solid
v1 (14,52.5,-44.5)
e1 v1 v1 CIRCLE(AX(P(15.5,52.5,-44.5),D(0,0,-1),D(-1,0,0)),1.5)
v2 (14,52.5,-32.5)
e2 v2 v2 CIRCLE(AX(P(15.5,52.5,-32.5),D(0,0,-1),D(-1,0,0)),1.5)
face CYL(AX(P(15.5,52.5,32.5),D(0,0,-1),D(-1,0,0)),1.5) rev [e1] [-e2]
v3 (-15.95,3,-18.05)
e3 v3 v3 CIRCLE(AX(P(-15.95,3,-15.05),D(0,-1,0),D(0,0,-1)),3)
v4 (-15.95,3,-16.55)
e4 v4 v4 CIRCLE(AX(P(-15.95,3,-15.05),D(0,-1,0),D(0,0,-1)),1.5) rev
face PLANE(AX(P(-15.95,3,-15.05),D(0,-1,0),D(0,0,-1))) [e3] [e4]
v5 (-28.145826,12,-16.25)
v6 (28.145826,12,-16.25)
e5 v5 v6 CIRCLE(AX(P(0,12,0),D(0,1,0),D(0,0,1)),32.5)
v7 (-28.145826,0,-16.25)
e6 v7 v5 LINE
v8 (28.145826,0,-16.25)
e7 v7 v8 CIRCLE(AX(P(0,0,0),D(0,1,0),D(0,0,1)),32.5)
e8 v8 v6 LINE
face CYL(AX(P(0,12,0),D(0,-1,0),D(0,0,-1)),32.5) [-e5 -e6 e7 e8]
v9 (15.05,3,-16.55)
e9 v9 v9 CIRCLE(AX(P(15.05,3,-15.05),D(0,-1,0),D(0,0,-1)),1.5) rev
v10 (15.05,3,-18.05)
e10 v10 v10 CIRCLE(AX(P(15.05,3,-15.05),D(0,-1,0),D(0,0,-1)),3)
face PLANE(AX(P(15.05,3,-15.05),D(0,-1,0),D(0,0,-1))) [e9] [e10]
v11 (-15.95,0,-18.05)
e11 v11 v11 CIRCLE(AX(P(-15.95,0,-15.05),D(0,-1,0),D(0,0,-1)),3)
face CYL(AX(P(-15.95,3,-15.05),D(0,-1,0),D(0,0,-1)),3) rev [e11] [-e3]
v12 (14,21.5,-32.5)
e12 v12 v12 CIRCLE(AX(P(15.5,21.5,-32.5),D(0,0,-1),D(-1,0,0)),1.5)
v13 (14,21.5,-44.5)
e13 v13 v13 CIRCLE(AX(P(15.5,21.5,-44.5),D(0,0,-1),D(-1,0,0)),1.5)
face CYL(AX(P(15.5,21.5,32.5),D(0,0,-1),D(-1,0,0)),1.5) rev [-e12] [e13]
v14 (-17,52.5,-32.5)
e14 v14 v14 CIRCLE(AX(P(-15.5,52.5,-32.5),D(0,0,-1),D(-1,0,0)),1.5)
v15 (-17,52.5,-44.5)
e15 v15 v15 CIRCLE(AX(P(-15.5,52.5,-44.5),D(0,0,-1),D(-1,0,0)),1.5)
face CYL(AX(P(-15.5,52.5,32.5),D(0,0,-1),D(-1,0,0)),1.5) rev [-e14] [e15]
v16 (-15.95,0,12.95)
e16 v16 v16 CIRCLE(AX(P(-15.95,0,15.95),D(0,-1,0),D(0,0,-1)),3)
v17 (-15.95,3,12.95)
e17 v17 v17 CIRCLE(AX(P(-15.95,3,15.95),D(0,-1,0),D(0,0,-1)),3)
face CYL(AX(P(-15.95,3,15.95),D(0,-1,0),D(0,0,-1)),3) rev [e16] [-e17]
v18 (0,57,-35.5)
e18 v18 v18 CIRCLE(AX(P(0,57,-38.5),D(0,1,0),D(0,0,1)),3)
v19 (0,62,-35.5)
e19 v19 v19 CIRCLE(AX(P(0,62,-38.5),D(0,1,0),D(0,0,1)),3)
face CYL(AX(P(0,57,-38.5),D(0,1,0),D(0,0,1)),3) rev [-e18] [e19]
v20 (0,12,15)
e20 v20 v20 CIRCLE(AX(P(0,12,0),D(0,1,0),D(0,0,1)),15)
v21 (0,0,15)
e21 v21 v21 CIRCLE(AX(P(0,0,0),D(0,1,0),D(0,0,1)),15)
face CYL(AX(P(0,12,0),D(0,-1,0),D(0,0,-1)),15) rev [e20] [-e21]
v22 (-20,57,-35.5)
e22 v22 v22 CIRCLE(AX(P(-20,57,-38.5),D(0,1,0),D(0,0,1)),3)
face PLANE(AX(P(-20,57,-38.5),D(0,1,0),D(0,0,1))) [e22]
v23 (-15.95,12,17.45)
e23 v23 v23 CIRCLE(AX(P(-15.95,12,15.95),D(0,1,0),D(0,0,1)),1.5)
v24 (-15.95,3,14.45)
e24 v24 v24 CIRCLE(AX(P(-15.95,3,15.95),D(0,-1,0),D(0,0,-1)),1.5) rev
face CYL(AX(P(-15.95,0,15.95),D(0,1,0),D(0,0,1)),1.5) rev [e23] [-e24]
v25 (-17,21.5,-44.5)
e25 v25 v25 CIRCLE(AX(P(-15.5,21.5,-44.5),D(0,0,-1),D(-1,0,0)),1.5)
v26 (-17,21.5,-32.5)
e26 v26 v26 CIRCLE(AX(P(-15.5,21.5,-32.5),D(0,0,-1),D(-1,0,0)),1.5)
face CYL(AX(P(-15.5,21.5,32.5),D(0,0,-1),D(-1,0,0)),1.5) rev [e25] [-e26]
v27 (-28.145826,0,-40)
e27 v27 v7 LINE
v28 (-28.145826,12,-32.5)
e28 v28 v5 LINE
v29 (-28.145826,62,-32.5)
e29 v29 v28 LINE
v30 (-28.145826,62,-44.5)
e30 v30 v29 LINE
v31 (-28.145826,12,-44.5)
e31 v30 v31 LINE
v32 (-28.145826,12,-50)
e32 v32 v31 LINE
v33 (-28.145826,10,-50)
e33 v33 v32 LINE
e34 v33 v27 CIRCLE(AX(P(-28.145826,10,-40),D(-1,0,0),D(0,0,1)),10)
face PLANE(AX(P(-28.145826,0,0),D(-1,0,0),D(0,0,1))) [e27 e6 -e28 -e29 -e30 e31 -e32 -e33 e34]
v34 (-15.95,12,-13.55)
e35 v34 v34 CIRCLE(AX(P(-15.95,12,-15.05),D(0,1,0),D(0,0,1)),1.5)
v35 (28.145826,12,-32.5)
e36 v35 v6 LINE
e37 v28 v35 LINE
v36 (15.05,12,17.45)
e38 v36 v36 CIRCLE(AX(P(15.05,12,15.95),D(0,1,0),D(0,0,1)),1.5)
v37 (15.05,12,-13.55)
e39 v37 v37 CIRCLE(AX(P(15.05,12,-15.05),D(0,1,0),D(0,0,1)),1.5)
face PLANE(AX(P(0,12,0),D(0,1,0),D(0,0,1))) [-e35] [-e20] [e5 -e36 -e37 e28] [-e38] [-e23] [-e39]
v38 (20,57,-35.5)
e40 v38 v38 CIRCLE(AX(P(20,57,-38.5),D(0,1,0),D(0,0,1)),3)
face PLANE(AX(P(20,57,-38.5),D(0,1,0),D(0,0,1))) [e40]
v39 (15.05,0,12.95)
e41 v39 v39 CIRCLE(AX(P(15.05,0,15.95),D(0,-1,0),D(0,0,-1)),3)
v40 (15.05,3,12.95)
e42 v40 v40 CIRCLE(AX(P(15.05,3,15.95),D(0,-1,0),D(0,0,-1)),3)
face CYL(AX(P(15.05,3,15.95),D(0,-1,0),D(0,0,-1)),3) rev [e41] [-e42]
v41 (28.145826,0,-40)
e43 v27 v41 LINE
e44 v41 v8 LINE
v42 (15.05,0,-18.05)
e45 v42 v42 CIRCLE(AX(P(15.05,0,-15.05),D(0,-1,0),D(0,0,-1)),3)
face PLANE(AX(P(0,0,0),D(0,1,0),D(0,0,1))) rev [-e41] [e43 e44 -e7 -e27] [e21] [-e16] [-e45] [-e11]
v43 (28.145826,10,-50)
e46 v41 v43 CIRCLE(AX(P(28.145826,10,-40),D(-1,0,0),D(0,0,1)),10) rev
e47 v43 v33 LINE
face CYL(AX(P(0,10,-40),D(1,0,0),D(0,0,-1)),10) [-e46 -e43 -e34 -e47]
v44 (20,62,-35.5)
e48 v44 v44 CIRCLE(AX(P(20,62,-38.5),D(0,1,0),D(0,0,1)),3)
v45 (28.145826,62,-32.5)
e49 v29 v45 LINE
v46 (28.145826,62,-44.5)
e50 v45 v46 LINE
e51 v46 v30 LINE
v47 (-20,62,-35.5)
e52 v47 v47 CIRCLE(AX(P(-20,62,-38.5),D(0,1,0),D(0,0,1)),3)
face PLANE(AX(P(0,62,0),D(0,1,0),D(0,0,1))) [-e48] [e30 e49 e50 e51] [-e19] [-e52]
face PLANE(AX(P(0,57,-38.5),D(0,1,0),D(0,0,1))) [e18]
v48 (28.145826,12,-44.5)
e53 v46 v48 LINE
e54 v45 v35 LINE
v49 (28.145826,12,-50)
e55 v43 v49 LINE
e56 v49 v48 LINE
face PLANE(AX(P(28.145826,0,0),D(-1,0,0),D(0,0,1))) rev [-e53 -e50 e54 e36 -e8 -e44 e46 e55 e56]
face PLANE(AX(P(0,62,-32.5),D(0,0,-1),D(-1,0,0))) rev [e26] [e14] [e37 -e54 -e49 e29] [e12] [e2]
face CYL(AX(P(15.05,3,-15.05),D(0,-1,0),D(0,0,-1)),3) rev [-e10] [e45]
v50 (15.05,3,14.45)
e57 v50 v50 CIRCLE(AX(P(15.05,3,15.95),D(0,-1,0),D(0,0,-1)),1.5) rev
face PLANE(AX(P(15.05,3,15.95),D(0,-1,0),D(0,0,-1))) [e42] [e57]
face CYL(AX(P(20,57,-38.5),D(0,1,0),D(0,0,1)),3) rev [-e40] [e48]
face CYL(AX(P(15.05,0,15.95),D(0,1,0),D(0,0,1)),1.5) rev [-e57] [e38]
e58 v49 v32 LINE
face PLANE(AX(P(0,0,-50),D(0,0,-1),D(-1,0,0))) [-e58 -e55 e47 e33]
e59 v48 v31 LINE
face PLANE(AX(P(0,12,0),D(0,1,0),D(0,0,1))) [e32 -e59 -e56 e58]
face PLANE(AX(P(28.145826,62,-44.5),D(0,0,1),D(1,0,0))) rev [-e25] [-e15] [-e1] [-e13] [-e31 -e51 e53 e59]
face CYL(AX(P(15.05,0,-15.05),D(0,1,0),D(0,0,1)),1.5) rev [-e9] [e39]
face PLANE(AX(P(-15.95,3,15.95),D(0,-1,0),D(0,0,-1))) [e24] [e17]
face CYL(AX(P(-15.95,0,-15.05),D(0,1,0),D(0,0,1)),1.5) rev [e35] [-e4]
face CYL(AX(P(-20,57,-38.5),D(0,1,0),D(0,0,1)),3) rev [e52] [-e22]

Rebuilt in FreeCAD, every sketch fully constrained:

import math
import FreeCAD as App
import Part
import Sketcher

V = App.Vector
Q = App.Units.Quantity


def edges_at(feature, points):
    """Names of the edges that pass closest to the given points."""
    edges = feature.Shape.Edges
    near = lambda p: min(range(len(edges)), key=lambda i: edges[i].distToShape(Part.Vertex(*p))[0])
    return sorted({f"Edge{near(p) + 1}" for p in points})

doc = App.newDocument("Part")
body = doc.addObject("PartDesign::Body", "Body")

# Sketch on XZ plane
sketch1 = body.newObject("Sketcher::SketchObject", "Sketch")
sketch1.AttachmentSupport = (doc.getObject("XZ_Plane"), [""])
sketch1.MapMode = "FlatFace"
sketch1.addGeometry([
    Part.Circle(V(0, 0, 0), V(0, 0, 1), 32),
    Part.Circle(V(0, 0, 0), V(0, 0, 1), 15),
], False)
sketch1.addConstraint([
    Sketcher.Constraint("Coincident", 0, 3, -1, 1),
    Sketcher.Constraint("Coincident", 1, 3, -1, 1),
    Sketcher.Constraint("Diameter", 0, Q("65 mm")),
    Sketcher.Constraint("Diameter", 1, Q("30 mm")),
])
pad1 = body.newObject("PartDesign::Pad", "Pad")
pad1.Profile = sketch1
pad1.Length = 12
pad1.Reversed = True

# Sketch on XZ plane
sketch2 = body.newObject("Sketcher::SketchObject", "Sketch001")
sketch2.AttachmentSupport = (doc.getObject("XZ_Plane"), [""])
sketch2.MapMode = "FlatFace"
sketch2.AttachmentOffset = App.Placement(V(0, 0, -12), App.Rotation())
sketch2.addGeometry([
    Part.Circle(V(-15.9, -15.1, 0), V(0, 0, 1), 1.5),
    Part.Circle(V(15.1, -15.1, 0), V(0, 0, 1), 1.5),
    Part.Circle(V(15.1, 15.9, 0), V(0, 0, 1), 1.5),
    Part.Circle(V(-15.9, 15.9, 0), V(0, 0, 1), 1.5),
], False)
sketch2.addConstraint([
    Sketcher.Constraint("Equal", 0, 1),
    Sketcher.Constraint("Equal", 1, 2),
    Sketcher.Constraint("Equal", 2, 3),
    Sketcher.Constraint("Horizontal", 0, 3, 1, 3),
    Sketcher.Constraint("Horizontal", 2, 3, 3, 3),
    Sketcher.Constraint("Vertical", 1, 3, 2, 3),
    Sketcher.Constraint("Vertical", 0, 3, 3, 3),
    Sketcher.Constraint("Diameter", 0, Q("3 mm")),
    Sketcher.Constraint("DistanceX", 0, 3, 1, 3, Q("31 mm")),
    Sketcher.Constraint("DistanceY", 1, 3, 2, 3, Q("31 mm")),
    Sketcher.Constraint("DistanceX", 0, 3, -1, 1, Q("15.95 mm")),
    Sketcher.Constraint("DistanceY", 0, 3, -1, 1, Q("15.05 mm")),
])
pocket1 = body.newObject("PartDesign::Pocket", "Pocket")
pocket1.Profile = sketch2
pocket1.Length = 12
pocket1.Reversed = True

# Sketch on XZ plane
sketch3 = body.newObject("Sketcher::SketchObject", "Sketch002")
sketch3.AttachmentSupport = (doc.getObject("XZ_Plane"), [""])
sketch3.MapMode = "FlatFace"
sketch3.addGeometry([
    Part.LineSegment(V(-28, -50, 0), V(-28, -16, 0)),
    Part.ArcOfCircle(Part.Circle(V(0, 0, 0), V(0, 0, 1), 32), math.radians(-150), math.radians(-30)),
    Part.LineSegment(V(28, -16, 0), V(28, -50, 0)),
    Part.LineSegment(V(28, -50, 0), V(-28, -50, 0)),
], False)
sketch3.addConstraint([
    Sketcher.Constraint("Coincident", 0, 2, 1, 1),
    Sketcher.Constraint("Coincident", 1, 2, 2, 1),
    Sketcher.Constraint("Coincident", 2, 2, 3, 1),
    Sketcher.Constraint("Coincident", 3, 2, 0, 1),
    Sketcher.Constraint("Vertical", 0),
    Sketcher.Constraint("Vertical", 2),
    Sketcher.Constraint("Horizontal", 3),
    Sketcher.Constraint("Coincident", 1, 3, -1, 1),
    Sketcher.Constraint("Horizontal", 0, 2, 1, 2),
    Sketcher.Constraint("Radius", 1, Q("32.5 mm")),
    Sketcher.Constraint("DistanceY", 2, 2, -1, 1, Q("50 mm")),
    Sketcher.Constraint("DistanceY", 0, 1, 0, 2, Q("33.75 mm")),
])
pad2 = body.newObject("PartDesign::Pad", "Pad001")
pad2.Profile = sketch3
pad2.Length = 12
pad2.Reversed = True

# Sketch on XZ plane
sketch4 = body.newObject("Sketcher::SketchObject", "Sketch003")
sketch4.AttachmentSupport = (doc.getObject("XZ_Plane"), [""])
sketch4.MapMode = "FlatFace"
sketch4.AttachmentOffset = App.Placement(V(0, 0, -12), App.Rotation())
sketch4.addGeometry([
    Part.LineSegment(V(28, -32, 0), V(28, -44, 0)),
    Part.LineSegment(V(28, -44, 0), V(-28, -44, 0)),
    Part.LineSegment(V(-28, -44, 0), V(-28, -32, 0)),
    Part.LineSegment(V(-28, -32, 0), V(28, -32, 0)),
], False)
sketch4.addConstraint([
    Sketcher.Constraint("Coincident", 0, 2, 1, 1),
    Sketcher.Constraint("Coincident", 1, 2, 2, 1),
    Sketcher.Constraint("Coincident", 2, 2, 3, 1),
    Sketcher.Constraint("Coincident", 3, 2, 0, 1),
    Sketcher.Constraint("Vertical", 0),
    Sketcher.Constraint("Horizontal", 1),
    Sketcher.Constraint("Vertical", 2),
    Sketcher.Constraint("Horizontal", 3),
    Sketcher.Constraint("DistanceY", 0, 2, 0, 1, Q("12 mm")),
    Sketcher.Constraint("DistanceY", 0, 2, -1, 1, Q("44.5 mm")),
    Sketcher.Constraint("DistanceX", 1, 2, 1, 1, Q("56.291651 mm")),
    Sketcher.Constraint("DistanceX", -1, 1, 0, 2, Q("28.145826 mm")),
])
pad3 = body.newObject("PartDesign::Pad", "Pad002")
pad3.Profile = sketch4
pad3.Length = 50
pad3.Reversed = True

# Sketch on XZ plane
sketch5 = body.newObject("Sketcher::SketchObject", "Sketch004")
sketch5.AttachmentSupport = (doc.getObject("XZ_Plane"), [""])
sketch5.MapMode = "FlatFace"
sketch5.AttachmentOffset = App.Placement(V(0, 0, -62), App.Rotation())
sketch5.addGeometry([
    Part.Circle(V(0, -38.5, 0), V(0, 0, 1), 3),
    Part.Circle(V(20, -38.5, 0), V(0, 0, 1), 3),
    Part.Circle(V(-20, -38.5, 0), V(0, 0, 1), 3),
], False)
sketch5.addConstraint([
    Sketcher.Constraint("Equal", 0, 1),
    Sketcher.Constraint("Equal", 1, 2),
    Sketcher.Constraint("Symmetric", 1, 3, 2, 3, -2),
    Sketcher.Constraint("PointOnObject", 0, 3, -2),
    Sketcher.Constraint("Horizontal", 0, 3, 1, 3),
    Sketcher.Constraint("Diameter", 0, Q("6 mm")),
    Sketcher.Constraint("DistanceX", -1, 1, 1, 3, Q("20 mm")),
    Sketcher.Constraint("DistanceY", 0, 3, -1, 1, Q("38.5 mm")),
])
pocket2 = body.newObject("PartDesign::Pocket", "Pocket001")
pocket2.Profile = sketch5
pocket2.Length = 5
pocket2.Reversed = True

# Sketch on XZ plane
sketch6 = body.newObject("Sketcher::SketchObject", "Sketch005")
sketch6.AttachmentSupport = (doc.getObject("XZ_Plane"), [""])
sketch6.MapMode = "FlatFace"
sketch6.addGeometry([
    Part.Circle(V(15.1, 15.9, 0), V(0, 0, 1), 3),
    Part.Circle(V(-15.9, 15.9, 0), V(0, 0, 1), 3),
    Part.Circle(V(-15.9, -15.1, 0), V(0, 0, 1), 3),
    Part.Circle(V(15.1, -15.1, 0), V(0, 0, 1), 3),
], False)
sketch6.addConstraint([
    Sketcher.Constraint("Equal", 0, 1),
    Sketcher.Constraint("Equal", 1, 2),
    Sketcher.Constraint("Equal", 2, 3),
    Sketcher.Constraint("Horizontal", 0, 3, 1, 3),
    Sketcher.Constraint("Horizontal", 2, 3, 3, 3),
    Sketcher.Constraint("Vertical", 1, 3, 2, 3),
    Sketcher.Constraint("Vertical", 0, 3, 3, 3),
    Sketcher.Constraint("Diameter", 0, Q("6 mm")),
    Sketcher.Constraint("DistanceX", 1, 3, 0, 3, Q("31 mm")),
    Sketcher.Constraint("DistanceY", 2, 3, 1, 3, Q("31 mm")),
    Sketcher.Constraint("DistanceX", -1, 1, 0, 3, Q("15.05 mm")),
    Sketcher.Constraint("DistanceY", -1, 1, 0, 3, Q("15.95 mm")),
])
pocket3 = body.newObject("PartDesign::Pocket", "Pocket002")
pocket3.Profile = sketch6
pocket3.Length = 3

# Sketch on XY plane
sketch7 = body.newObject("Sketcher::SketchObject", "Sketch006")
sketch7.AttachmentSupport = (doc.getObject("XY_Plane"), [""])
sketch7.MapMode = "FlatFace"
sketch7.AttachmentOffset = App.Placement(V(0, 0, -44.5), App.Rotation())
sketch7.addGeometry([
    Part.Circle(V(-15.5, 52.5, 0), V(0, 0, 1), 1.5),
    Part.Circle(V(-15.5, 21.5, 0), V(0, 0, 1), 1.5),
    Part.Circle(V(15.5, 52.5, 0), V(0, 0, 1), 1.5),
    Part.Circle(V(15.5, 21.5, 0), V(0, 0, 1), 1.5),
], False)
sketch7.addConstraint([
    Sketcher.Constraint("Equal", 0, 1),
    Sketcher.Constraint("Equal", 1, 2),
    Sketcher.Constraint("Equal", 2, 3),
    Sketcher.Constraint("Symmetric", 0, 3, 2, 3, -2),
    Sketcher.Constraint("Symmetric", 1, 3, 3, 3, -2),
    Sketcher.Constraint("Vertical", 0, 3, 1, 3),
    Sketcher.Constraint("Diameter", 0, Q("3 mm")),
    Sketcher.Constraint("DistanceY", 1, 3, 0, 3, Q("31 mm")),
    Sketcher.Constraint("DistanceX", 0, 3, 2, 3, Q("31 mm")),
    Sketcher.Constraint("DistanceY", -1, 1, 0, 3, Q("52.5 mm")),
])
pocket4 = body.newObject("PartDesign::Pocket", "Pocket003")
pocket4.Profile = sketch7
pocket4.Type = "ThroughAll"
pocket4.Reversed = True
doc.recompute()

fillet = body.newObject("PartDesign::Fillet", "Fillet")
fillet.Base = (pocket4, edges_at(pocket4, [(0, 0, -50)]))
fillet.Radius = 10

doc.recompute()
